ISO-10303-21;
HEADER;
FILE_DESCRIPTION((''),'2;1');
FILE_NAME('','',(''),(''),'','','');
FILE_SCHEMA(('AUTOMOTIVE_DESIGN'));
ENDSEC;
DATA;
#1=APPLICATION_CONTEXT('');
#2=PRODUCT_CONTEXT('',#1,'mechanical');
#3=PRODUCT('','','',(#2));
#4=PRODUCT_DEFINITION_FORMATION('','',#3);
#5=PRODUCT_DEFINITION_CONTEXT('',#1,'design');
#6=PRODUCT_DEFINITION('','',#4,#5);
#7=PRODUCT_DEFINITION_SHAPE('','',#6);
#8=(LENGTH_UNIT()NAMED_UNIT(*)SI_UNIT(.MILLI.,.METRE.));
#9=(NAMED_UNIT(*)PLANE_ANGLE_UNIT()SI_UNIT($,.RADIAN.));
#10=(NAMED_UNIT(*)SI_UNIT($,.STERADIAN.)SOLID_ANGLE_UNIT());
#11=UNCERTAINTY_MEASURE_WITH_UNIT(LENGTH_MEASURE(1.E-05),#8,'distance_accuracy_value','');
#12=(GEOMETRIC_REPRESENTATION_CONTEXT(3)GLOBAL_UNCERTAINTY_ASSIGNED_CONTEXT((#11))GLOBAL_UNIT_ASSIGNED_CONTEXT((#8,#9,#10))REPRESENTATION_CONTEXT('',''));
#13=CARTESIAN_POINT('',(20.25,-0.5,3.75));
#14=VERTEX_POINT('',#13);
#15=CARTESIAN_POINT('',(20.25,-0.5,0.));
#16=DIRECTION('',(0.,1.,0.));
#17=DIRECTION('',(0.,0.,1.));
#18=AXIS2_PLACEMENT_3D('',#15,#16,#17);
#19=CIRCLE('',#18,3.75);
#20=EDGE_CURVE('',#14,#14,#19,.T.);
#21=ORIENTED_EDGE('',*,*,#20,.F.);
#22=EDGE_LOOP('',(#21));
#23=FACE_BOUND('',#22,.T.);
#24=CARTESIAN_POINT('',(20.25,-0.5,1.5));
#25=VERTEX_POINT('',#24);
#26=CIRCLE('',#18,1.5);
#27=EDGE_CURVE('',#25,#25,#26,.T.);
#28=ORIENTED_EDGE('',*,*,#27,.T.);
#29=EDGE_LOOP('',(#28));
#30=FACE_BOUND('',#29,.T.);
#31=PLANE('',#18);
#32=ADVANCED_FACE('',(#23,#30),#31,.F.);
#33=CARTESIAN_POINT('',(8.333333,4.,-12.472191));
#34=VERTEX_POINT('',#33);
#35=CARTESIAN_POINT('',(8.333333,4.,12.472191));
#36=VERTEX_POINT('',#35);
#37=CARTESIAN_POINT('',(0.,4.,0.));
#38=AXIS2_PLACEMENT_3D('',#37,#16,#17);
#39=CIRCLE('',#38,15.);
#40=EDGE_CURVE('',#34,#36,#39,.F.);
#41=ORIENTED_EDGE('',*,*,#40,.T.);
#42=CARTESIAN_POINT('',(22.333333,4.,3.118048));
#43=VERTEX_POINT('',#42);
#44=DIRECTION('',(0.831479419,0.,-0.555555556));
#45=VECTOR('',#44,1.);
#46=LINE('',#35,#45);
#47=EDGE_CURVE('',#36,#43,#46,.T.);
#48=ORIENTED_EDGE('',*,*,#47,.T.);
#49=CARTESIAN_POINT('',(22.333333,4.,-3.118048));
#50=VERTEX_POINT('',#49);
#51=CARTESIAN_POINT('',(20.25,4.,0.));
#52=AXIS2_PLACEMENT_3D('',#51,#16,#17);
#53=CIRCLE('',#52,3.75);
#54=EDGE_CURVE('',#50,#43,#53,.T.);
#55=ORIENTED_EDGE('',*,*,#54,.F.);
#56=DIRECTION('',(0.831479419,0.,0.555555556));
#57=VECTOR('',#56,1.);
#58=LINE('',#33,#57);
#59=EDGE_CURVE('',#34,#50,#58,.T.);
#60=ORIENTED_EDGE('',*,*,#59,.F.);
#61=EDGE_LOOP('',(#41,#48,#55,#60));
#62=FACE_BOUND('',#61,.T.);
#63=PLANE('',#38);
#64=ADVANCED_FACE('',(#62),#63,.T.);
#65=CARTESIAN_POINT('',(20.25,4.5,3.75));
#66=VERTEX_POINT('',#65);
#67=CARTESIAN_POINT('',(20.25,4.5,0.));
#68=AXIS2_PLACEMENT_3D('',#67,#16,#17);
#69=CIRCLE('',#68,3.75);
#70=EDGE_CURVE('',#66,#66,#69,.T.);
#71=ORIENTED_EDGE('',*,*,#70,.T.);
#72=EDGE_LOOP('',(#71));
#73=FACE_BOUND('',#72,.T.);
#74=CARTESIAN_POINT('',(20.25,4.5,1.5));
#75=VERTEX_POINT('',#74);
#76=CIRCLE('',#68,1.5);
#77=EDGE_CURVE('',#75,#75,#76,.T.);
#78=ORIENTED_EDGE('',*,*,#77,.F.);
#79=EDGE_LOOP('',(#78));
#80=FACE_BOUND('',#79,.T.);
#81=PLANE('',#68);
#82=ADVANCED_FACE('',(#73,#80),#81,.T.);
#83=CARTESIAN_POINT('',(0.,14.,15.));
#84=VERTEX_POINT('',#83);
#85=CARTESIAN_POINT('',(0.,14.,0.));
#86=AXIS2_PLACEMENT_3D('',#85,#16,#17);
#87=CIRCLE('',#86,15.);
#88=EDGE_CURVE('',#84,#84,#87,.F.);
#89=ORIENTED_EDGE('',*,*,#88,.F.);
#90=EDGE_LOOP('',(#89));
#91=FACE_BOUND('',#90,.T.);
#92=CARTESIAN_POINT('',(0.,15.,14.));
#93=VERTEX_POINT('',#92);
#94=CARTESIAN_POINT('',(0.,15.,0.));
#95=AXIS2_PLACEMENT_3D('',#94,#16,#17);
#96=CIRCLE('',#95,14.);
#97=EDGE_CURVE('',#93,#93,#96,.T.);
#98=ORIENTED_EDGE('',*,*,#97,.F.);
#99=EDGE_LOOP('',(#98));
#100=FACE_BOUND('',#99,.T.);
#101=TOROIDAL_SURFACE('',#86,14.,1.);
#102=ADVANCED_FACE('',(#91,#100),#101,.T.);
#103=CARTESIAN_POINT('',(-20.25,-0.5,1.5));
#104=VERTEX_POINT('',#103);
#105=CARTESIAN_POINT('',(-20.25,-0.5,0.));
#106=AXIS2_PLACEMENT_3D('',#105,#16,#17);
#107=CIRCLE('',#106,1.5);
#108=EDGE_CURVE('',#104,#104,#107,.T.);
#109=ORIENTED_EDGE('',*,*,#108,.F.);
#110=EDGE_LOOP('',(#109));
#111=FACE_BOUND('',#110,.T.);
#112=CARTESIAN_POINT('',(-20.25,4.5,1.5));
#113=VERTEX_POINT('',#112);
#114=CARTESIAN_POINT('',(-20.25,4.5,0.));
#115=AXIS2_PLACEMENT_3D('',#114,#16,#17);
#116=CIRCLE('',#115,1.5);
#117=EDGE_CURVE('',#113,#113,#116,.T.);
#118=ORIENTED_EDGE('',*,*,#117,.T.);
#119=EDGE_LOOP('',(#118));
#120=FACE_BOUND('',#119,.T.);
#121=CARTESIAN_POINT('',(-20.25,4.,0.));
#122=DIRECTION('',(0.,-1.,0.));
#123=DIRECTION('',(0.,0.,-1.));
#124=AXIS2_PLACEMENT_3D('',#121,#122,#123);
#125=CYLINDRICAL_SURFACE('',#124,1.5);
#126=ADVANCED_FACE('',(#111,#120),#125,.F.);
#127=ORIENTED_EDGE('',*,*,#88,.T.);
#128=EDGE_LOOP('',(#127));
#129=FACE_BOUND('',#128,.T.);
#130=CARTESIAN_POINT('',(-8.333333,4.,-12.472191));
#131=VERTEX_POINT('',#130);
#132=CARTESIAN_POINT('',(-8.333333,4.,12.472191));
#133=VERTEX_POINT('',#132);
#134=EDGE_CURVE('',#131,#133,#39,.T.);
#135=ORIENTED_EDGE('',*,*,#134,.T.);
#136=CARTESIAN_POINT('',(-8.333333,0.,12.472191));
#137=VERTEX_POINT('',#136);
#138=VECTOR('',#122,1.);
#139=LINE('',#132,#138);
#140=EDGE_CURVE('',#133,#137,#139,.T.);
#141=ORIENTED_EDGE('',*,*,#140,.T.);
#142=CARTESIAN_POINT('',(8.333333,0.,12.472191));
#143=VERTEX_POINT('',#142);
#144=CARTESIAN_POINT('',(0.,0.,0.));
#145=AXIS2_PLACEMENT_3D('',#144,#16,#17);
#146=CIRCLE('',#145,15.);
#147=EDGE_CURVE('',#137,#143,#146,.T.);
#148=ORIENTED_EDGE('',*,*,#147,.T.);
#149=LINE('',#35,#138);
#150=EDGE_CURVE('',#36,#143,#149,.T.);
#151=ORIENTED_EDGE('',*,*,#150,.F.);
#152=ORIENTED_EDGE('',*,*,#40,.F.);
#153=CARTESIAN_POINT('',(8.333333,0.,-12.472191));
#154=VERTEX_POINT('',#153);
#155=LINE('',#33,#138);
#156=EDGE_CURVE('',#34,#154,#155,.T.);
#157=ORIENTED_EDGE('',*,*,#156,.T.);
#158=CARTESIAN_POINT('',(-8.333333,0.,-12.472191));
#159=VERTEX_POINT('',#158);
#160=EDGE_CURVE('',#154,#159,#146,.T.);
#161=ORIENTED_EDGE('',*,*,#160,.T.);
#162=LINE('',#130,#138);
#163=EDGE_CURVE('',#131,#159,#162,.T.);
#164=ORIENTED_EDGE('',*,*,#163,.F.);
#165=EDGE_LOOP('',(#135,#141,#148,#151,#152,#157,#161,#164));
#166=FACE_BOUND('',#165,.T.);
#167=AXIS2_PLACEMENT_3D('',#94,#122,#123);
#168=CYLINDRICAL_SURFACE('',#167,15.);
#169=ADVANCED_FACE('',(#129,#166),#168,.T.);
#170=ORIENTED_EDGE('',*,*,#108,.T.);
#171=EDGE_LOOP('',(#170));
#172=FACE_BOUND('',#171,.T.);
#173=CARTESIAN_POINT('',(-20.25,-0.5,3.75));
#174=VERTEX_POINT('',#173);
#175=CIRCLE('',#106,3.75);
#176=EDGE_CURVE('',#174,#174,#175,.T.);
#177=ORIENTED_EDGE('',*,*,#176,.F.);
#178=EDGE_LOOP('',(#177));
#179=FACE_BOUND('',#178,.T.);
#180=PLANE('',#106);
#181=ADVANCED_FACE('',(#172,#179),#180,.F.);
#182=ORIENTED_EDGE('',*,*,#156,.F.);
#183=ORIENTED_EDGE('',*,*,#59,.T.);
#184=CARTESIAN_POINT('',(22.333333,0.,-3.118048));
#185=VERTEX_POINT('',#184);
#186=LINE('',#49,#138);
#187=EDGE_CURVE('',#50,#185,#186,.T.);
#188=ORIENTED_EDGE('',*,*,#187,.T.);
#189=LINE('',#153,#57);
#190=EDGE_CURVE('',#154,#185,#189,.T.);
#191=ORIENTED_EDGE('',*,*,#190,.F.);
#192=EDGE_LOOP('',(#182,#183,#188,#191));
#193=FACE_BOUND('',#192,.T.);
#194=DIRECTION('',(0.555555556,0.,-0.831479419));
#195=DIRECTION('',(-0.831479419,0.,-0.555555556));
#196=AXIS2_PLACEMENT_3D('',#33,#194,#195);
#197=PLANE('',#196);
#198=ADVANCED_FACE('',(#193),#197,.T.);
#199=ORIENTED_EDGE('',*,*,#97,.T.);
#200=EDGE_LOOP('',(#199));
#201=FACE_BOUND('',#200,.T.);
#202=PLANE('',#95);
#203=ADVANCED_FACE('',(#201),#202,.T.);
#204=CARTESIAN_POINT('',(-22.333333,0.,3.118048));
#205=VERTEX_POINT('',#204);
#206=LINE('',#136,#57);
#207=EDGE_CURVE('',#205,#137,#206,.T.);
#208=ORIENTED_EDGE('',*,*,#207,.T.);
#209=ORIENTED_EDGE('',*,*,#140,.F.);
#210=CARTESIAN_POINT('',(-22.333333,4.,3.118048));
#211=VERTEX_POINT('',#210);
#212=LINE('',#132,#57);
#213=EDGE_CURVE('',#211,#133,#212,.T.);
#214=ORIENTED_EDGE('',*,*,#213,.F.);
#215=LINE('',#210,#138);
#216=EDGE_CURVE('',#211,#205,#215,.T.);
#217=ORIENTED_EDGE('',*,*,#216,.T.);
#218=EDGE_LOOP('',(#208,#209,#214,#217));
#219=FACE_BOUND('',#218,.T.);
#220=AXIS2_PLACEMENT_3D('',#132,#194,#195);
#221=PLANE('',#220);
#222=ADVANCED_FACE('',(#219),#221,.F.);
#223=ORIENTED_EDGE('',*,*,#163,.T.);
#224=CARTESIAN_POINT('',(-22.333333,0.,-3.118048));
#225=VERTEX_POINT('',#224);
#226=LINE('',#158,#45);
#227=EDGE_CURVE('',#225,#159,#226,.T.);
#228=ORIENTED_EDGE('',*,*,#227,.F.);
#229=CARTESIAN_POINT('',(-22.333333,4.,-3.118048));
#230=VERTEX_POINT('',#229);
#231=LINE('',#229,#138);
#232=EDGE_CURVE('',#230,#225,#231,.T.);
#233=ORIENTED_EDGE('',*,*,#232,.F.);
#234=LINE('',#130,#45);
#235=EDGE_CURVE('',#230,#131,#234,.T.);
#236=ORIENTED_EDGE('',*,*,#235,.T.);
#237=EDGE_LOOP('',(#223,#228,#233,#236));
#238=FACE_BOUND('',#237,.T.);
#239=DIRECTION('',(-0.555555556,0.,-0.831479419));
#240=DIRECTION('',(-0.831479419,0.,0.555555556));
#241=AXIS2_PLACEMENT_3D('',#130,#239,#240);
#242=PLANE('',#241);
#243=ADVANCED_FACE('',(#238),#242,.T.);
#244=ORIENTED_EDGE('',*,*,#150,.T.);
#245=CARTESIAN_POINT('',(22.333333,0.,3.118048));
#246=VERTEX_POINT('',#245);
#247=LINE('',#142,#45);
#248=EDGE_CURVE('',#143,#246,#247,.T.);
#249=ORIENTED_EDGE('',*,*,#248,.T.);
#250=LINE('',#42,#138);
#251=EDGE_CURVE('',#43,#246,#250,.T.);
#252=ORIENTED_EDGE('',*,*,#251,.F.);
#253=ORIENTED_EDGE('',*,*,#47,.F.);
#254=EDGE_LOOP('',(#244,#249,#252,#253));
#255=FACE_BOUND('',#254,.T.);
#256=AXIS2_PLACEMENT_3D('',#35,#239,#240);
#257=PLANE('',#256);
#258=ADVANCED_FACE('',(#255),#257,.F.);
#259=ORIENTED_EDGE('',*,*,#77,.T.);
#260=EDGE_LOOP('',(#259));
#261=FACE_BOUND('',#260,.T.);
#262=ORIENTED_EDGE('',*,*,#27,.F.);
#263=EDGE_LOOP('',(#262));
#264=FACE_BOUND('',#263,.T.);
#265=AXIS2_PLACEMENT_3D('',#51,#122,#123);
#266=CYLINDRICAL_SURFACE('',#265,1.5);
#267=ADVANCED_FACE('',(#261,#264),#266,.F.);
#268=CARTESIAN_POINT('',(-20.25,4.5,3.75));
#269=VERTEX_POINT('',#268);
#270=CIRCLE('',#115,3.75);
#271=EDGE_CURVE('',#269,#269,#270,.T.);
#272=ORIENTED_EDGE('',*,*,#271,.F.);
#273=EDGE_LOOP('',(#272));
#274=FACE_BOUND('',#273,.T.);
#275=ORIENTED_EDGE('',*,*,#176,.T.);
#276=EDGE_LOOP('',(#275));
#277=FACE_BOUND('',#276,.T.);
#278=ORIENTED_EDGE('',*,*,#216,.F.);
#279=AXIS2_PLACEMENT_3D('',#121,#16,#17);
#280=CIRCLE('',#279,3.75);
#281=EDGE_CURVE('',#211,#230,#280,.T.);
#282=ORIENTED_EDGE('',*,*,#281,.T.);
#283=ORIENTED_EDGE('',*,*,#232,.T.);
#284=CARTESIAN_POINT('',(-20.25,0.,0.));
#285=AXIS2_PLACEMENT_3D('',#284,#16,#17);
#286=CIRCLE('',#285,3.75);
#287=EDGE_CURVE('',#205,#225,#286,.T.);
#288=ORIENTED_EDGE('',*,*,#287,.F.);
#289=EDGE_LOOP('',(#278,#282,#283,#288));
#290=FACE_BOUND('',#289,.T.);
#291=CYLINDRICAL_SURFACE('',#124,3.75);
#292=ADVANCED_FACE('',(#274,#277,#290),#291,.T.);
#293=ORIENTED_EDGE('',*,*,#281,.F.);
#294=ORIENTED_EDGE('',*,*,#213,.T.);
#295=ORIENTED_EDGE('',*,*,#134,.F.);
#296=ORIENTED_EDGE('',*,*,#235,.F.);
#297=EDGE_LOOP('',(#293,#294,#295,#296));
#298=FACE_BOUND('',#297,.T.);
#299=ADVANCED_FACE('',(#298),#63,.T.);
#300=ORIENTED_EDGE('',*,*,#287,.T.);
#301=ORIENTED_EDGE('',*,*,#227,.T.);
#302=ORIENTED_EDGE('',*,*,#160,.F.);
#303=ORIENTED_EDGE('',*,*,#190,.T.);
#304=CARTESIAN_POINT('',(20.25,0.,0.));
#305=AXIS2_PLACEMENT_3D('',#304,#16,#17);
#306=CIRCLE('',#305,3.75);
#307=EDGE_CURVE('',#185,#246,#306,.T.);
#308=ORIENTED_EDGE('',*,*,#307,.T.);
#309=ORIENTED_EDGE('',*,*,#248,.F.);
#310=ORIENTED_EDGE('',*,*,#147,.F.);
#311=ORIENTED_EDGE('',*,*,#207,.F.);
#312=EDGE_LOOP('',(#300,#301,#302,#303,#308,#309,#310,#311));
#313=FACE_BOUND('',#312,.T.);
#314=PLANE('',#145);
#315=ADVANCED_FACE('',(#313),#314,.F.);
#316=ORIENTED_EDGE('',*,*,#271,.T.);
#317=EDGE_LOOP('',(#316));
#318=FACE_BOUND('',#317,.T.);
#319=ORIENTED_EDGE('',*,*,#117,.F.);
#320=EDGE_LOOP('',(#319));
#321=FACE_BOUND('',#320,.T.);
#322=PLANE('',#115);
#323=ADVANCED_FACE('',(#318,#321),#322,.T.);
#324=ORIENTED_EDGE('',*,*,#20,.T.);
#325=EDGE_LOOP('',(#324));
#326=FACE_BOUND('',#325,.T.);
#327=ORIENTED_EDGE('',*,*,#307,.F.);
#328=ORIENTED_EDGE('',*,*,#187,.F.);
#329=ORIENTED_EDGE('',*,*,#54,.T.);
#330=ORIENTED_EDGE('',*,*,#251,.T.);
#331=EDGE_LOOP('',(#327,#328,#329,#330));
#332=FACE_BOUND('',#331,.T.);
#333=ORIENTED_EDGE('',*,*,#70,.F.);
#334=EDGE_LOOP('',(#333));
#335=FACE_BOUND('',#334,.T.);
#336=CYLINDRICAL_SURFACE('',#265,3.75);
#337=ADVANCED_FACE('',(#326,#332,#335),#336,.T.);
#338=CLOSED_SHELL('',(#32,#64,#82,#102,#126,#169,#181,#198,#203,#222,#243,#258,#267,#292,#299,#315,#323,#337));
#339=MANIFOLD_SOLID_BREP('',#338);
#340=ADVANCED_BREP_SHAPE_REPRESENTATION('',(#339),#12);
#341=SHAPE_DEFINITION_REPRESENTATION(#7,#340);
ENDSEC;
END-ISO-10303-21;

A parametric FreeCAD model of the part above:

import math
import FreeCAD as App
import Part
import Sketcher
Q = App.Units.Quantity


def edges_at(feature, points):
    """Names of the edges that pass closest to the given points."""
    edges = feature.Shape.Edges
    near = lambda p: min(range(len(edges)), key=lambda i: edges[i].distToShape(Part.Vertex(*p))[0])
    return sorted({f"Edge{near(p) + 1}" for p in points})

doc = App.newDocument("Part")
body = doc.addObject("PartDesign::Body", "Body")

# Sketch on XZ plane
sketch1 = doc.addObject("Sketcher::SketchObject", "Sketch")
body.addObject(sketch1)
sketch1.AttachmentSupport = (doc.XZ_Plane, [""])
sketch1.MapMode = "FlatFace"
sketch1.addGeometry(Part.Circle(App.Vector(0, 0, 0), App.Vector(0, 0, 1), 15), False)
sketch1.addConstraint([
    Sketcher.Constraint("Coincident", 0, 3, -1, 1),
    Sketcher.Constraint("Diameter", 0, Q("30 mm")),
])
pad1 = doc.addObject("PartDesign::Pad", "Pad")
body.addObject(pad1)
pad1.Profile = sketch1
pad1.Length = 15
pad1.Reversed = True

# Sketch on XZ plane
sketch2 = doc.addObject("Sketcher::SketchObject", "Sketch001")
body.addObject(sketch2)
sketch2.AttachmentSupport = (doc.XZ_Plane, [""])
sketch2.MapMode = "FlatFace"
sketch2.addGeometry([
    Part.ArcOfCircle(Part.Circle(App.Vector(0, 0, 0), App.Vector(0, 0, 1), 15), math.radians(124), math.radians(236)),  # 0
    Part.LineSegment(App.Vector(-8.3, -12.5, 0), App.Vector(-22.3, -3.1, 0)),  # 1
    Part.ArcOfCircle(Part.Circle(App.Vector(-20.3, 0, 0), App.Vector(0, 0, 1), 3.7), math.radians(124), math.radians(236)),  # 2
    Part.LineSegment(App.Vector(-22.3, 3.1, 0), App.Vector(-8.3, 12.5, 0)),  # 3
    Part.Circle(App.Vector(-20.2, 0, 0), App.Vector(0, 0, 1), 1.5),  # 4
    Part.LineSegment(App.Vector(22.3, -3.1, 0), App.Vector(8.3, -12.5, 0)),  # 5
    Part.ArcOfCircle(Part.Circle(App.Vector(0, 0, 0), App.Vector(0, 0, 1), 15), math.radians(-56), math.radians(56)),  # 6
    Part.LineSegment(App.Vector(8.3, 12.5, 0), App.Vector(22.3, 3.1, 0)),  # 7
    Part.ArcOfCircle(Part.Circle(App.Vector(20.3, 0, 0), App.Vector(0, 0, 1), 3.7), math.radians(-56), math.radians(56)),  # 8
    Part.Circle(App.Vector(20.2, 0, 0), App.Vector(0, 0, 1), 1.5),  # 9
], False)
sketch2.addConstraint([
    Sketcher.Constraint("Tangent", 0, 2, 1, 1),
    Sketcher.Constraint("Tangent", 1, 2, 2, 2),
    Sketcher.Constraint("Tangent", 2, 1, 3, 1),
    Sketcher.Constraint("Tangent", 3, 2, 0, 1),
    Sketcher.Constraint("Tangent", 5, 2, 6, 1),
    Sketcher.Constraint("Tangent", 6, 2, 7, 1),
    Sketcher.Constraint("Tangent", 7, 2, 8, 2),
    Sketcher.Constraint("Tangent", 8, 1, 5, 1),
    Sketcher.Constraint("Coincident", 0, 3, -1, 1),
    Sketcher.Constraint("Coincident", 6, 3, -1, 1),
    Sketcher.Constraint("Coincident", 4, 3, 2, 3),
    Sketcher.Constraint("Coincident", 9, 3, 8, 3),
    Sketcher.Constraint("Equal", 0, 6),
    Sketcher.Constraint("Equal", 2, 8),
    Sketcher.Constraint("Equal", 4, 9),
    Sketcher.Constraint("Symmetric", 2, 3, 8, 3, -1, 1),
    Sketcher.Constraint("PointOnObject", 2, 3, -1),
    Sketcher.Constraint("Diameter", 4, Q("3 mm")),
    Sketcher.Constraint("Radius", 0, Q("15 mm")),
    Sketcher.Constraint("Radius", 2, Q("3.75 mm")),
    Sketcher.Constraint("DistanceX", 1, 2, 0, 2, Q("14 mm")),
])
pad2 = doc.addObject("PartDesign::Pad", "Pad001")
body.addObject(pad2)
pad2.Profile = sketch2
pad2.Length = 4
pad2.Reversed = True

# Sketch on XZ plane
sketch3 = doc.addObject("Sketcher::SketchObject", "Sketch002")
body.addObject(sketch3)
sketch3.AttachmentSupport = (doc.XZ_Plane, [""])
sketch3.MapMode = "FlatFace"
sketch3.AttachmentOffset = App.Placement(App.Vector(0, 0, -4), App.Rotation())
sketch3.addGeometry([
    Part.Circle(App.Vector(-20.2, 0, 0), App.Vector(0, 0, 1), 3.8),
    Part.Circle(App.Vector(-20.2, 0, 0), App.Vector(0, 0, 1), 1.5),
    Part.Circle(App.Vector(20.2, 0, 0), App.Vector(0, 0, 1), 3.8),
    Part.Circle(App.Vector(20.2, 0, 0), App.Vector(0, 0, 1), 1.5),
], False)
sketch3.addConstraint([
    Sketcher.Constraint("Coincident", 1, 3, 0, 3),
    Sketcher.Constraint("Coincident", 3, 3, 2, 3),
    Sketcher.Constraint("Equal", 0, 2),
    Sketcher.Constraint("Equal", 1, 3),
    Sketcher.Constraint("Symmetric", 0, 3, 2, 3, -1, 1),
    Sketcher.Constraint("PointOnObject", 0, 3, -1),
    Sketcher.Constraint("Diameter", 1, Q("3 mm")),
    Sketcher.Constraint("Diameter", 0, Q("7.5 mm")),
    Sketcher.Constraint("DistanceX", 0, 3, 2, 3, Q("40.5 mm")),
])
pad3 = doc.addObject("PartDesign::Pad", "Pad002")
body.addObject(pad3)
pad3.Profile = sketch3
pad3.Type = "TwoLengths"
pad3.Length = 0.5
pad3.Length2 = 4.5
pad3.Reversed = True
doc.recompute()

fillet = doc.addObject("PartDesign::Fillet", "Fillet")
body.addObject(fillet)
fillet.Base = (pad3, edges_at(pad3, [(0, 15, -15)]))
fillet.Radius = 1

doc.recompute()
